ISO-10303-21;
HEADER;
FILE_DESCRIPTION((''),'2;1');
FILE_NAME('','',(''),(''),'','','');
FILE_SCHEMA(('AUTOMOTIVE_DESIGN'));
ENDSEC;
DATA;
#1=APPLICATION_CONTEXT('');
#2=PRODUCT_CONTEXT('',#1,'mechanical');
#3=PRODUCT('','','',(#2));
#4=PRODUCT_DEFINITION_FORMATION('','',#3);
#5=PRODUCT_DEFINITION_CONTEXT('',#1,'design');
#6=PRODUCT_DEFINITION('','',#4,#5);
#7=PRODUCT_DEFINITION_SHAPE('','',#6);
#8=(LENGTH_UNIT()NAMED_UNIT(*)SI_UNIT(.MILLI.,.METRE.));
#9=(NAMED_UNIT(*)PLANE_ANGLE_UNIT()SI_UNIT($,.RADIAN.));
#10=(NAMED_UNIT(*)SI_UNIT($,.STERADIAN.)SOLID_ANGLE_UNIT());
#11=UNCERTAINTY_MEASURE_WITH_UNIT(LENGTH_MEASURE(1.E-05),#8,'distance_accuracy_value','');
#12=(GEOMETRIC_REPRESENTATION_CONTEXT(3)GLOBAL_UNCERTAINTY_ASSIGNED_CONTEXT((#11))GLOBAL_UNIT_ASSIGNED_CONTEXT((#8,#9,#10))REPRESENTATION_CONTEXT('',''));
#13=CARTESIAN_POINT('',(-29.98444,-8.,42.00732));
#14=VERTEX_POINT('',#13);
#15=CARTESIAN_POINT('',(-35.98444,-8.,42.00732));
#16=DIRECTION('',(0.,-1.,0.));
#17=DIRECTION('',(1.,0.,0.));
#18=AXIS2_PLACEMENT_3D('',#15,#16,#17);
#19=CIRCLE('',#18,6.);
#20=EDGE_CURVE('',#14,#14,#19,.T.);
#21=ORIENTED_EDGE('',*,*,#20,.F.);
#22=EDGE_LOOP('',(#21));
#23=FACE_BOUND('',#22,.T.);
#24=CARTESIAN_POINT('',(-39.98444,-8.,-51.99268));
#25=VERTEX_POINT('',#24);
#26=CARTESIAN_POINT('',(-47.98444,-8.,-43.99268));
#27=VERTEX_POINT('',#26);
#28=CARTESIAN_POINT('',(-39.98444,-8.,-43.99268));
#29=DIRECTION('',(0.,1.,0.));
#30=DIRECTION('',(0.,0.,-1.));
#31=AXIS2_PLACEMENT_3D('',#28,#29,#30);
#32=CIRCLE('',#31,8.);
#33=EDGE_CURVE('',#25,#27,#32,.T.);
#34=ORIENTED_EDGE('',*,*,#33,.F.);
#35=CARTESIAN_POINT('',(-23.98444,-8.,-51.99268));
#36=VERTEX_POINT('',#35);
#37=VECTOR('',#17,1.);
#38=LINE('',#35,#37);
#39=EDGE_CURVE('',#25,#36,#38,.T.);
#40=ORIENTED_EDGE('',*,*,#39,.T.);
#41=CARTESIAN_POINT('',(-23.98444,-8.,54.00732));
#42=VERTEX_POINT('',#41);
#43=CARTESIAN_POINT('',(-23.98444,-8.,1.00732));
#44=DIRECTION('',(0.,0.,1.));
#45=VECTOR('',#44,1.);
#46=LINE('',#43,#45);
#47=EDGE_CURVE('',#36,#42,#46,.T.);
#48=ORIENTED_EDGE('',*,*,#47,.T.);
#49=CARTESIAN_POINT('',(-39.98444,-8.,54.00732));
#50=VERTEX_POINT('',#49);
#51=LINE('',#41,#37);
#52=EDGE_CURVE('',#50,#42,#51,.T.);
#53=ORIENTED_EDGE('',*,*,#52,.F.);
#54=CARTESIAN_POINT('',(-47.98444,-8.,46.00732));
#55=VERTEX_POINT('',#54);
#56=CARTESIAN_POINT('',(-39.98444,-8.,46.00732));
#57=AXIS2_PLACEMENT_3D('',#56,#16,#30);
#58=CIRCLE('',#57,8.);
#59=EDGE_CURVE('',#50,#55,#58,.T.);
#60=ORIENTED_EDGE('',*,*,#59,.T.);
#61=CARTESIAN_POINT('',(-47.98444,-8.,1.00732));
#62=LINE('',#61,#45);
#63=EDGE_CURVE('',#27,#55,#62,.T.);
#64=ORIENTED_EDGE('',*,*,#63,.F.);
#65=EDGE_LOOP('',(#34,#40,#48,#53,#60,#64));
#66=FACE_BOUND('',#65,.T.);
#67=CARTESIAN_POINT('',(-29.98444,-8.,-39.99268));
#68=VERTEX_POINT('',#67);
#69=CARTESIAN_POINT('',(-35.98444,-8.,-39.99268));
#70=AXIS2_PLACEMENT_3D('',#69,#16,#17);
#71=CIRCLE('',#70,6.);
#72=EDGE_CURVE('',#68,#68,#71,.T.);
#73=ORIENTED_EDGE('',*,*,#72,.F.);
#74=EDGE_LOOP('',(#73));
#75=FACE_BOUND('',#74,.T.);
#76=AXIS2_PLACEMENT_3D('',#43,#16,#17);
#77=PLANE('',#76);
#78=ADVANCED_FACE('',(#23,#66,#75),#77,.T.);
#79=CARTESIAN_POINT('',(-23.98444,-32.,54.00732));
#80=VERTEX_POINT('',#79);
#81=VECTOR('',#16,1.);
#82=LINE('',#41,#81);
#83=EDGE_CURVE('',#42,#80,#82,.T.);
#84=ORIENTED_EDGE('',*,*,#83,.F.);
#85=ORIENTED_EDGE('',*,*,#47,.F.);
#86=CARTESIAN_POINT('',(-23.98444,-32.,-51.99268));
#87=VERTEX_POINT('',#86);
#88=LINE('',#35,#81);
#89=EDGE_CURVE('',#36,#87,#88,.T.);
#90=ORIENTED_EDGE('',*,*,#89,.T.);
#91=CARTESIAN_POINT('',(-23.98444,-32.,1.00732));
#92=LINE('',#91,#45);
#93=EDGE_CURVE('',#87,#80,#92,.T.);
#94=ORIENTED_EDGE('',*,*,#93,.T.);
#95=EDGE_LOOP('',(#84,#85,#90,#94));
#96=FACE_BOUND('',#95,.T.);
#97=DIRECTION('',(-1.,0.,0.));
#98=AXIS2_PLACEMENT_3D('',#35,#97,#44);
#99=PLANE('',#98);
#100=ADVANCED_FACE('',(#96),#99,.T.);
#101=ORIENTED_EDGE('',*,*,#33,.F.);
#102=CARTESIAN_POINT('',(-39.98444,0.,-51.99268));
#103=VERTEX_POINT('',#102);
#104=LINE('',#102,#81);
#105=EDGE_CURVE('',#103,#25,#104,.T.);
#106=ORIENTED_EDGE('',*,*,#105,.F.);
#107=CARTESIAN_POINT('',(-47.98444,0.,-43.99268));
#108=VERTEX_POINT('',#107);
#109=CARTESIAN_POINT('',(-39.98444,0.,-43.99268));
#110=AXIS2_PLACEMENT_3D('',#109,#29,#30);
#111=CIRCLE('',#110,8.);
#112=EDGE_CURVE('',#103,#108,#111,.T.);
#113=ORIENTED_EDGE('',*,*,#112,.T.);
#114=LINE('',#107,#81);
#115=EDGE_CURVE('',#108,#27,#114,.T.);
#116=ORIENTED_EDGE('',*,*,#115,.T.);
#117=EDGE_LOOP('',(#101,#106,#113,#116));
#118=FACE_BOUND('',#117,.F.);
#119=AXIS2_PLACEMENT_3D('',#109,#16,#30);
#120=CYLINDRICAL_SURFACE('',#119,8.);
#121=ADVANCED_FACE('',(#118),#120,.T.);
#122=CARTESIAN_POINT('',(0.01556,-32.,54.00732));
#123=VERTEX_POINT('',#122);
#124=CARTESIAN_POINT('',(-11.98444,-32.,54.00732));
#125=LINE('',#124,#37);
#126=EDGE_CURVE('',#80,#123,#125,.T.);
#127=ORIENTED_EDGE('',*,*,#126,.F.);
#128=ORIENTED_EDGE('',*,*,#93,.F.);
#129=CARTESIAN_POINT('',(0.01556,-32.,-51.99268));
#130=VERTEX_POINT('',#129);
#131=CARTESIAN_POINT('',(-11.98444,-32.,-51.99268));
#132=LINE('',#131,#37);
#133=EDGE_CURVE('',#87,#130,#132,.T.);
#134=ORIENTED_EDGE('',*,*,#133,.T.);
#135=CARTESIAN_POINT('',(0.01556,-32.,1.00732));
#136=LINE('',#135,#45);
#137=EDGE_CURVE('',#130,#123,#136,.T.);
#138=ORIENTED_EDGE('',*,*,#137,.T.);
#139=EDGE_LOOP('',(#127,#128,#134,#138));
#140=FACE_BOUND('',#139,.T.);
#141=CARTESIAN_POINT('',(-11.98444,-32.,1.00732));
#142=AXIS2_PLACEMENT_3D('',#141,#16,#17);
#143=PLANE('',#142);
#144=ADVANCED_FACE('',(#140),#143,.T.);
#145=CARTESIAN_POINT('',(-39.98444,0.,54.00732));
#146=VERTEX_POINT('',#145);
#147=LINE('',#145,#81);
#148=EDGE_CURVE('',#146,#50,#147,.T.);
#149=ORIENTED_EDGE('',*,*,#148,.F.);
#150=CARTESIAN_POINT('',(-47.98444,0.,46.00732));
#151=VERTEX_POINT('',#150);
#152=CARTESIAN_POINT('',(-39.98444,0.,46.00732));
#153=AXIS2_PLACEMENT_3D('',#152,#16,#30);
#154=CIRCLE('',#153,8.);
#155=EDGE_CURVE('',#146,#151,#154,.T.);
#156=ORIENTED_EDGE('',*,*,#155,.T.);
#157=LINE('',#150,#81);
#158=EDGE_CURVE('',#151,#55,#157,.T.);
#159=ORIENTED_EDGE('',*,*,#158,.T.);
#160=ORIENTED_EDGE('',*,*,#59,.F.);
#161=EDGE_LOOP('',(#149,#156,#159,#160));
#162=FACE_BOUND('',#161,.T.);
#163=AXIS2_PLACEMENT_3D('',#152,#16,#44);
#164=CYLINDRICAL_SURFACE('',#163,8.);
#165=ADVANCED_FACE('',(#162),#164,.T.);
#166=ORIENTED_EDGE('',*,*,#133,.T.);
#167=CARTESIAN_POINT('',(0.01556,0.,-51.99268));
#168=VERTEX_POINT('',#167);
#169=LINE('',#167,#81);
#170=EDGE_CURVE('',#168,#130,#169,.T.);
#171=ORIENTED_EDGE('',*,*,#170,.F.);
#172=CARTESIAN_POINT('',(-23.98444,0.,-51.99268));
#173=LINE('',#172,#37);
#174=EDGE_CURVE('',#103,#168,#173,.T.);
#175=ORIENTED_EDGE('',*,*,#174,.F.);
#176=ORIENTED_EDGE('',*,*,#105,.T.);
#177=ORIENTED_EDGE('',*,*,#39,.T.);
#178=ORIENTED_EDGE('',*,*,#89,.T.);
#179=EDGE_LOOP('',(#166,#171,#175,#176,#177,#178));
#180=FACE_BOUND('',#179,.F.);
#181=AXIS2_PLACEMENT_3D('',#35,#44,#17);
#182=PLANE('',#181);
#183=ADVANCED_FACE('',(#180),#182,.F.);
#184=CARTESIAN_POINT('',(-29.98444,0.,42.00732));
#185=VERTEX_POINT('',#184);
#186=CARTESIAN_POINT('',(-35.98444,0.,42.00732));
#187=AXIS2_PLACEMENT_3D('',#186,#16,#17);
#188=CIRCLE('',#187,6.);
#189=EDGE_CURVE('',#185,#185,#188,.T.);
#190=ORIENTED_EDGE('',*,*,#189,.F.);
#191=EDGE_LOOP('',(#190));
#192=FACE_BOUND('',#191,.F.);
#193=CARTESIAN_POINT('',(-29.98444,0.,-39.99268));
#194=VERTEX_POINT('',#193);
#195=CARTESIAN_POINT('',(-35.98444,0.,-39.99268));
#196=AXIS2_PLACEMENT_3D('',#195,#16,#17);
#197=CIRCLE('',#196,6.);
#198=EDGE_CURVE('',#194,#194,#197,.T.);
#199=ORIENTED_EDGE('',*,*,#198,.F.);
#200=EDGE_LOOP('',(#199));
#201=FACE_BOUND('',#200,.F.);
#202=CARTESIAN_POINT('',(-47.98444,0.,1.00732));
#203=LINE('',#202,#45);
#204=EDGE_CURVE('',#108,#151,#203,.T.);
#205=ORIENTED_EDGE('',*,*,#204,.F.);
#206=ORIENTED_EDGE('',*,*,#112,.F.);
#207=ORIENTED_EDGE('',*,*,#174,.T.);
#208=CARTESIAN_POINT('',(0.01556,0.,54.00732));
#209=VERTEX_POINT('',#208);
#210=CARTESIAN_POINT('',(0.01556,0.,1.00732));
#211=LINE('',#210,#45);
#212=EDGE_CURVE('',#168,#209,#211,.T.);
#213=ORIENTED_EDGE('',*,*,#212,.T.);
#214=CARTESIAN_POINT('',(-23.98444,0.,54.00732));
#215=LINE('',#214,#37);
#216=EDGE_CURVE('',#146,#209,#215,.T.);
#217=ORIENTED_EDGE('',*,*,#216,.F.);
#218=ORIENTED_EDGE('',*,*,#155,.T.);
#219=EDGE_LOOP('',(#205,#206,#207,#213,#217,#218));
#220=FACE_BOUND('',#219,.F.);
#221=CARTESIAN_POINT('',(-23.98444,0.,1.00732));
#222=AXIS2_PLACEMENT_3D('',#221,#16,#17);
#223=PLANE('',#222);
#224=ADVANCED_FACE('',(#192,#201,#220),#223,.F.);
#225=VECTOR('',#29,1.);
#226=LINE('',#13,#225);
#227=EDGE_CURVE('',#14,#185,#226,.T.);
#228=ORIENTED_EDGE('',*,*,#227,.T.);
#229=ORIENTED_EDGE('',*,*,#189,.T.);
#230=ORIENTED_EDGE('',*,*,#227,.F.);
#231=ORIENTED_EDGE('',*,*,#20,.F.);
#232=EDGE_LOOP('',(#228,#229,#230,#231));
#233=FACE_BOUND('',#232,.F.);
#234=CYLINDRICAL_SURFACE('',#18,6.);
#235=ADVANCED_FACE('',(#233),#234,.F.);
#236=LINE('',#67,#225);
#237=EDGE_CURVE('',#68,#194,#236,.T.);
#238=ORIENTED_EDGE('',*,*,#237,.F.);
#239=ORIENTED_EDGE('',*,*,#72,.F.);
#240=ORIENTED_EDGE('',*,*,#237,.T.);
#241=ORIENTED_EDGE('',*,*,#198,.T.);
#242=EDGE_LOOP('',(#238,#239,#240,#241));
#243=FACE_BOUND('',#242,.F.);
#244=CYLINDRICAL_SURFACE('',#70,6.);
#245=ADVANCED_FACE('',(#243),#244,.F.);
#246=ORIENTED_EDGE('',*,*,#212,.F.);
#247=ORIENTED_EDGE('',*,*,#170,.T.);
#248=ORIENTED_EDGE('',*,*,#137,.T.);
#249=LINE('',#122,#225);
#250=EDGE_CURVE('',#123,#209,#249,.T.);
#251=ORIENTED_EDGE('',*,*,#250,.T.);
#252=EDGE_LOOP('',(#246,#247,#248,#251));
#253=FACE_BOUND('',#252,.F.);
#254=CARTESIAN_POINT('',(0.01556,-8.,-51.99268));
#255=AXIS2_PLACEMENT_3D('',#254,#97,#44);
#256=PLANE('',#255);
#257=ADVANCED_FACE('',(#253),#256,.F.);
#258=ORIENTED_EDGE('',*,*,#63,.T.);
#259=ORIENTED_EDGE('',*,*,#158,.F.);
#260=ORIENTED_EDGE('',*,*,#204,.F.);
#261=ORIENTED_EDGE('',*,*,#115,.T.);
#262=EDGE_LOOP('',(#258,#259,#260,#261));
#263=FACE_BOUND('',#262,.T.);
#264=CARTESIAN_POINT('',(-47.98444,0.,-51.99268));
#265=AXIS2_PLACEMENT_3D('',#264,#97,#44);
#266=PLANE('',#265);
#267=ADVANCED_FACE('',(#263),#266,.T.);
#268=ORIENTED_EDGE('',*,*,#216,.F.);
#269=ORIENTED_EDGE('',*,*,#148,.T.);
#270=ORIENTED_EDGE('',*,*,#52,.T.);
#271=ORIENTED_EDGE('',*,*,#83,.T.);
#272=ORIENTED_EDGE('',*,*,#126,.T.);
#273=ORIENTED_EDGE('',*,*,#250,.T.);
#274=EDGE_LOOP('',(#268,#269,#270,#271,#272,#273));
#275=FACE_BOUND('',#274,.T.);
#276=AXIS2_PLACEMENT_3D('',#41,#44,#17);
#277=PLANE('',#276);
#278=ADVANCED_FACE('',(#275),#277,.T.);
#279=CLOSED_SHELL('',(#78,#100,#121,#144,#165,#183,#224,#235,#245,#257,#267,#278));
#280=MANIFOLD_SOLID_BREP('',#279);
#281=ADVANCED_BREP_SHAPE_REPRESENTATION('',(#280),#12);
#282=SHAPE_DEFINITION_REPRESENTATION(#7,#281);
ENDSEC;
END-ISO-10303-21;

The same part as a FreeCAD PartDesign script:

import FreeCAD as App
import Part
import Sketcher

V = App.Vector
Q = App.Units.Quantity


def edges_at(feature, points):
    """Names of the edges that pass closest to the given points."""
    edges = feature.Shape.Edges
    near = lambda p: min(range(len(edges)), key=lambda i: edges[i].distToShape(Part.Vertex(*p))[0])
    return sorted({f"Edge{near(p) + 1}" for p in points})


def add_polygon(sketch, points):
    """Adds a closed chain of lines whose ends are joined by coincident constraints."""
    first, n = sketch.GeometryCount, len(points)
    for a, b in zip(points, points[1:] + points[:1]):
        sketch.addGeometry(Part.LineSegment(App.Vector(*a, 0), App.Vector(*b, 0)), False)
    for i in range(n):
        sketch.addConstraint(Sketcher.Constraint("Coincident", first + i, 2, first + (i + 1) % n, 1))

doc = App.newDocument("Part")
body = doc.addObject("PartDesign::Body", "Body")

sketch1 = body.newObject("Sketcher::SketchObject", "Sketch")
sketch1.AttachmentSupport = (doc.getObject("XZ_Plane"), [""])
sketch1.MapMode = "FlatFace"
add_polygon(sketch1, [(-48, 54), (-48, -52), (0, -52), (0, 54)])
sketch1.addConstraint(Sketcher.Constraint("Vertical", 0))
sketch1.addConstraint(Sketcher.Constraint("Horizontal", 1))
sketch1.addConstraint(Sketcher.Constraint("Vertical", 2))
sketch1.addConstraint(Sketcher.Constraint("Horizontal", 3))
sketch1.addConstraint(Sketcher.Constraint("DistanceX", 1, 1, 1, 2, Q("48 mm")))
sketch1.addConstraint(Sketcher.Constraint("DistanceY", 0, 2, 0, 1, Q("106 mm")))
sketch1.addConstraint(Sketcher.Constraint("DistanceX", 0, 2, -1, 1, Q("47.98444 mm")))
sketch1.addConstraint(Sketcher.Constraint("DistanceY", 0, 2, -1, 1, Q("51.99268 mm")))
pad1 = body.newObject("PartDesign::Pad", "Pad")
pad1.Profile = sketch1
pad1.Length = 8

sketch2 = body.newObject("Sketcher::SketchObject", "Sketch001")
sketch2.AttachmentSupport = (doc.getObject("XZ_Plane"), [""])
sketch2.MapMode = "FlatFace"
sketch2.AttachmentOffset = App.Placement(V(0, 0, 8), App.Rotation())
add_polygon(sketch2, [(-24, 54), (-24, -52), (0, -52), (0, 54)])
sketch2.addConstraint(Sketcher.Constraint("Vertical", 0))
sketch2.addConstraint(Sketcher.Constraint("Horizontal", 1))
sketch2.addConstraint(Sketcher.Constraint("Vertical", 2))
sketch2.addConstraint(Sketcher.Constraint("Horizontal", 3))
sketch2.addConstraint(Sketcher.Constraint("DistanceX", 1, 1, 1, 2, Q("24 mm")))
sketch2.addConstraint(Sketcher.Constraint("DistanceY", 0, 2, 0, 1, Q("106 mm")))
sketch2.addConstraint(Sketcher.Constraint("DistanceX", 0, 2, -1, 1, Q("23.98444 mm")))
sketch2.addConstraint(Sketcher.Constraint("DistanceY", 0, 2, -1, 1, Q("51.99268 mm")))
pad2 = body.newObject("PartDesign::Pad", "Pad001")
pad2.Profile = sketch2
pad2.Length = 24

sketch3 = body.newObject("Sketcher::SketchObject", "Sketch002")
sketch3.AttachmentSupport = (doc.getObject("XZ_Plane"), [""])
sketch3.MapMode = "FlatFace"
sketch3.AttachmentOffset = App.Placement(V(0, 0, 8), App.Rotation())
sketch3.addGeometry(Part.Circle(V(-36, 42, 0), V(0, 0, 1), 6), False)
sketch3.addGeometry(Part.Circle(V(-36, -40, 0), V(0, 0, 1), 6), False)
sketch3.addConstraint(Sketcher.Constraint("Equal", 0, 1))
sketch3.addConstraint(Sketcher.Constraint("Vertical", 0, 3, 1, 3))
sketch3.addConstraint(Sketcher.Constraint("Diameter", 0, Q("12 mm")))
sketch3.addConstraint(Sketcher.Constraint("DistanceY", 1, 3, 0, 3, Q("82 mm")))
sketch3.addConstraint(Sketcher.Constraint("DistanceX", 0, 3, -1, 1, Q("35.98444 mm")))
sketch3.addConstraint(Sketcher.Constraint("DistanceY", -1, 1, 0, 3, Q("42.00732 mm")))
pocket1 = body.newObject("PartDesign::Pocket", "Pocket")
pocket1.Profile = sketch3
pocket1.Length = 40
doc.recompute()

fillet = body.newObject("PartDesign::Fillet", "Fillet")
fillet.Base = (pocket1, edges_at(pocket1, [(-47.984, -4, 54.007), (-47.984, -4, -51.993)]))
fillet.Radius = 8

doc.recompute()
